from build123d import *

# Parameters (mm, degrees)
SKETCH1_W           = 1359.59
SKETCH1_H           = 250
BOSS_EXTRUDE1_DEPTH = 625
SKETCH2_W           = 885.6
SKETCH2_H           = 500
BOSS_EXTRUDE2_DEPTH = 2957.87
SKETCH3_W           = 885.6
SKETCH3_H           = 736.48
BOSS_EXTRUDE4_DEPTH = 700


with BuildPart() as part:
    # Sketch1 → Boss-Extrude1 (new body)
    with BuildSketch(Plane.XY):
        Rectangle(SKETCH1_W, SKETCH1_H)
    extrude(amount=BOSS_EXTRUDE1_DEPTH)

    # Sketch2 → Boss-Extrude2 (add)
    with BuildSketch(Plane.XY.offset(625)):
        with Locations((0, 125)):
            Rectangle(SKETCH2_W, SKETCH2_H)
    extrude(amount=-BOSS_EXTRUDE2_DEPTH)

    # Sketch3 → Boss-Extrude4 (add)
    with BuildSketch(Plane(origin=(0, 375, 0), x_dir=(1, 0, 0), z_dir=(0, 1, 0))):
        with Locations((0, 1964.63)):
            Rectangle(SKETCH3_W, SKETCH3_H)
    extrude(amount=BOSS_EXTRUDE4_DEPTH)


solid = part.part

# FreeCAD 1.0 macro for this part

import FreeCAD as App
import Part
import Sketcher

V = App.Vector
Q = App.Units.Quantity

doc = App.newDocument("Part")
body = doc.addObject("PartDesign::Body", "Body")

sketch1 = body.newObject("Sketcher::SketchObject", "Sketch")
sketch1.AttachmentSupport = (doc.getObject("XY_Plane"), [""])
sketch1.MapMode = "FlatFace"
sketch1.addGeometry([
    Part.LineSegment(V(-680, 125, 0), V(-680, -125, 0)),
    Part.LineSegment(V(-680, -125, 0), V(680, -125, 0)),
    Part.LineSegment(V(680, -125, 0), V(680, 125, 0)),
    Part.LineSegment(V(680, 125, 0), V(-680, 125, 0)),
], False)
sketch1.addConstraint([
    Sketcher.Constraint("Coincident", 0, 2, 1, 1),
    Sketcher.Constraint("Coincident", 1, 2, 2, 1),
    Sketcher.Constraint("Coincident", 2, 2, 3, 1),
    Sketcher.Constraint("Coincident", 3, 2, 0, 1),
    Sketcher.Constraint("Vertical", 0),
    Sketcher.Constraint("Horizontal", 1),
    Sketcher.Constraint("Vertical", 2),
    Sketcher.Constraint("Horizontal", 3),
    Sketcher.Constraint("Symmetric", 0, 2, 2, 2, -1, 1),
    Sketcher.Constraint("DistanceY", 0, 2, 0, 1, Q("250 mm")),
    Sketcher.Constraint("DistanceX", 1, 1, 1, 2, Q("1359.59 mm")),
])
pad1 = body.newObject("PartDesign::Pad", "Pad")
pad1.Profile = sketch1
pad1.Length = 625

sketch2 = body.newObject("Sketcher::SketchObject", "Sketch001")
sketch2.AttachmentSupport = (doc.getObject("XY_Plane"), [""])
sketch2.MapMode = "FlatFace"
sketch2.AttachmentOffset = App.Placement(V(0, 0, 625), App.Rotation())
sketch2.addGeometry([
    Part.LineSegment(V(-443, 375, 0), V(-443, -125, 0)),
    Part.LineSegment(V(-443, -125, 0), V(443, -125, 0)),
    Part.LineSegment(V(443, -125, 0), V(443, 375, 0)),
    Part.LineSegment(V(443, 375, 0), V(-443, 375, 0)),
], False)
sketch2.addConstraint([
    Sketcher.Constraint("Coincident", 0, 2, 1, 1),
    Sketcher.Constraint("Coincident", 1, 2, 2, 1),
    Sketcher.Constraint("Coincident", 2, 2, 3, 1),
    Sketcher.Constraint("Coincident", 3, 2, 0, 1),
    Sketcher.Constraint("Vertical", 0),
    Sketcher.Constraint("Horizontal", 1),
    Sketcher.Constraint("Vertical", 2),
    Sketcher.Constraint("Horizontal", 3),
    Sketcher.Constraint("DistanceY", 0, 2, 0, 1, Q("500 mm")),
    Sketcher.Constraint("DistanceX", 1, 1, 1, 2, Q("885.6 mm")),
    Sketcher.Constraint("DistanceY", 0, 2, -1, 1, Q("125 mm")),
    Sketcher.Constraint("DistanceX", 0, 2, -1, 1, Q("442.8 mm")),
])
pad2 = body.newObject("PartDesign::Pad", "Pad001")
pad2.Profile = sketch2
pad2.Length = 2957.87
pad2.Reversed = True

sketch3 = body.newObject("Sketcher::SketchObject", "Sketch002")
sketch3.AttachmentSupport = (doc.getObject("XZ_Plane"), [""])
sketch3.MapMode = "FlatFace"
sketch3.AttachmentOffset = App.Placement(V(0, 0, -375), App.Rotation())
sketch3.addGeometry([
    Part.LineSegment(V(-443, -2333, 0), V(-443, -1596, 0)),
    Part.LineSegment(V(-443, -1596, 0), V(443, -1596, 0)),
    Part.LineSegment(V(443, -1596, 0), V(443, -2333, 0)),
    Part.LineSegment(V(443, -2333, 0), V(-443, -2333, 0)),
], False)
sketch3.addConstraint([
    Sketcher.Constraint("Coincident", 0, 2, 1, 1),
    Sketcher.Constraint("Coincident", 1, 2, 2, 1),
    Sketcher.Constraint("Coincident", 2, 2, 3, 1),
    Sketcher.Constraint("Coincident", 3, 2, 0, 1),
    Sketcher.Constraint("Vertical", 0),
    Sketcher.Constraint("Horizontal", 1),
    Sketcher.Constraint("Vertical", 2),
    Sketcher.Constraint("Horizontal", 3),
    Sketcher.Constraint("DistanceX", 1, 1, 1, 2, Q("885.6 mm")),
    Sketcher.Constraint("DistanceY", 0, 1, 0, 2, Q("736.48 mm")),
    Sketcher.Constraint("DistanceX", 0, 2, -1, 1, Q("442.8 mm")),
    Sketcher.Constraint("DistanceY", 0, 2, -1, 1, Q("1596.39 mm")),
])
pad3 = body.newObject("PartDesign::Pad", "Pad002")
pad3.Profile = sketch3
pad3.Length = 700
pad3.Reversed = True

doc.recompute()
